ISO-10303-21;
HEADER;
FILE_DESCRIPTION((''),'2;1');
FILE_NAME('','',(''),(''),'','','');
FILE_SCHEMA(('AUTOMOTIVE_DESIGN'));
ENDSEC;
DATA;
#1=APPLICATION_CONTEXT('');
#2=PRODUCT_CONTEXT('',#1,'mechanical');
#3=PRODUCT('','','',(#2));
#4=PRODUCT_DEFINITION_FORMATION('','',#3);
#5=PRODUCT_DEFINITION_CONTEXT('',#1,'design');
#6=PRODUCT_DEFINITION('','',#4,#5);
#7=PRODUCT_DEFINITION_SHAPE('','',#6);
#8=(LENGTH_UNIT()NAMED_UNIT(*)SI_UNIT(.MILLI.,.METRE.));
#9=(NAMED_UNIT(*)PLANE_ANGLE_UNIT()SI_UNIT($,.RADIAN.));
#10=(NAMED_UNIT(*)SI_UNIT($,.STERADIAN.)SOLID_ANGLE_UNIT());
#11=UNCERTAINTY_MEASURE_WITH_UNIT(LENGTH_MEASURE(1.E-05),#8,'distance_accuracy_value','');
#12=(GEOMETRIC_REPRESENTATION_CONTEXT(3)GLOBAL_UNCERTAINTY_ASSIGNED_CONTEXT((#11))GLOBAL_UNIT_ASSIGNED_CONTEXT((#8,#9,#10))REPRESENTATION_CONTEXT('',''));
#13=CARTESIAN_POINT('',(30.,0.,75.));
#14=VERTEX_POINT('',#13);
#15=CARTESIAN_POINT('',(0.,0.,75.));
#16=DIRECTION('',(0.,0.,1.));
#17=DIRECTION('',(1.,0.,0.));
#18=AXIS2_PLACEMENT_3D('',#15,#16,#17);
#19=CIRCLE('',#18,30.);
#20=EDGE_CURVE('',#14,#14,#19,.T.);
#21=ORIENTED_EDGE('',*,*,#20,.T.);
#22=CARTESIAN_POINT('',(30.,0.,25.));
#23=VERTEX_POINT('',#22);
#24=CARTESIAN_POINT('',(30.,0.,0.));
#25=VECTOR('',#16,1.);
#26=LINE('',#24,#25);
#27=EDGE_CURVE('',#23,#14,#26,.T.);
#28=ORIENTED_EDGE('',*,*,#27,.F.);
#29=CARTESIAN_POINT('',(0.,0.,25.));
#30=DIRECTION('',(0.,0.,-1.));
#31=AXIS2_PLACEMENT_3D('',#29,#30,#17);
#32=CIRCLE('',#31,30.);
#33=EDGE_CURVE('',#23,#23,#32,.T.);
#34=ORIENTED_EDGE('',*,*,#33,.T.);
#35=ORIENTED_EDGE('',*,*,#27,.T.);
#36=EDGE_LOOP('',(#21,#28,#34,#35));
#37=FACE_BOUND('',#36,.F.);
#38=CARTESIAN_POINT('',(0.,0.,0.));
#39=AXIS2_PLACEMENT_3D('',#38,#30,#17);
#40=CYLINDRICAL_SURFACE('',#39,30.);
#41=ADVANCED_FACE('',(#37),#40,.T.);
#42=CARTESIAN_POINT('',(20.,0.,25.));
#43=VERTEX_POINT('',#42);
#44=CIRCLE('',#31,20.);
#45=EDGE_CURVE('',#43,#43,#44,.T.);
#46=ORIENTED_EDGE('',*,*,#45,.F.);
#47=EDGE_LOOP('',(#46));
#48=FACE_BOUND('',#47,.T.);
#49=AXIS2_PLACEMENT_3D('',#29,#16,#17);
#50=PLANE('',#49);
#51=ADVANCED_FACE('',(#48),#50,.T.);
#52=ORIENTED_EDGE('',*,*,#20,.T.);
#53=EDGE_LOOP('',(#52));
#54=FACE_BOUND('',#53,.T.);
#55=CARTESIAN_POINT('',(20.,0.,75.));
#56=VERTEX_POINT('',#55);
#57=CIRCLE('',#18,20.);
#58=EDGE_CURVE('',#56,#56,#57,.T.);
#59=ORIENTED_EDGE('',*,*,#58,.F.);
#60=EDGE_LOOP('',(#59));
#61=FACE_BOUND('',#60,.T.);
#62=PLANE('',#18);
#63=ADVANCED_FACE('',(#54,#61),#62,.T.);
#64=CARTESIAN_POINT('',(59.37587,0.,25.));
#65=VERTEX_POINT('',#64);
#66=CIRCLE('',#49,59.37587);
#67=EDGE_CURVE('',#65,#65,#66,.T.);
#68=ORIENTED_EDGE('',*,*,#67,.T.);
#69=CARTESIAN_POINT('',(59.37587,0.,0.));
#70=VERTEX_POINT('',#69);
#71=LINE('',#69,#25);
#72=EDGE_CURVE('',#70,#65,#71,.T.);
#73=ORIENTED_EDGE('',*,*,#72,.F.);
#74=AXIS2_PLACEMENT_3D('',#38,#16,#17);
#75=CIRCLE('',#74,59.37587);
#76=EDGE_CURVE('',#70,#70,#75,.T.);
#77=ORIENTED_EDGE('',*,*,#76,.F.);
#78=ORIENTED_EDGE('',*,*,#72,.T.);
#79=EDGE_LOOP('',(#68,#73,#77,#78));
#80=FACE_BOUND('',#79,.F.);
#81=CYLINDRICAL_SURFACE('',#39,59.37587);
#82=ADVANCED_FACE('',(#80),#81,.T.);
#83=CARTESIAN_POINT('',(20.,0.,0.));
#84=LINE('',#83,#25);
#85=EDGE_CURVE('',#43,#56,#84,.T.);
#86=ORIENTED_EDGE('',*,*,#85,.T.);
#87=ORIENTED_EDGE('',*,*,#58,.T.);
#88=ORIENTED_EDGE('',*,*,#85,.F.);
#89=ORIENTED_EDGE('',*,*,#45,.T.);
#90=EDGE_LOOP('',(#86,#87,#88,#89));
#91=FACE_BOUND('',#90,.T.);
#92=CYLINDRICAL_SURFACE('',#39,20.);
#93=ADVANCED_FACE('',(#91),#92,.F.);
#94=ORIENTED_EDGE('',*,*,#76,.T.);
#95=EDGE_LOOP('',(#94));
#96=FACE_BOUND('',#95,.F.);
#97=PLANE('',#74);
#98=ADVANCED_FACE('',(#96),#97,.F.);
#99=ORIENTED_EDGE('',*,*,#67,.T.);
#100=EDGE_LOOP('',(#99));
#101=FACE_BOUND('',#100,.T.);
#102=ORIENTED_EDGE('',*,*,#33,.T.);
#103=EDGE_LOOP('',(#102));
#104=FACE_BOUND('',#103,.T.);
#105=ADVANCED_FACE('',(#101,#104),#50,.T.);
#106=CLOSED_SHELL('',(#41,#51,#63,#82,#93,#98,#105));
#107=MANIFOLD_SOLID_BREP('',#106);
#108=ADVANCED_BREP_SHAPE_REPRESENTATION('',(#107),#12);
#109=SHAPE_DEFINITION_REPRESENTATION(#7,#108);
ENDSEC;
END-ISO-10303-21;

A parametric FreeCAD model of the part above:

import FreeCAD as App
import Part
import Sketcher

doc = App.newDocument("Part")
body = doc.addObject("PartDesign::Body", "Body")

# Sketch on XY plane
sketch1 = doc.addObject("Sketcher::SketchObject", "Sketch")
body.addObject(sketch1)
sketch1.AttachmentSupport = (doc.XY_Plane, [""])
sketch1.MapMode = "FlatFace"
sketch1.addGeometry(Part.Circle(App.Vector(0, 0, 0), App.Vector(0, 0, 1), 30), False)
sketch1.addConstraint([
    Sketcher.Constraint("Coincident", 0, 3, -1, 1),
    Sketcher.Constraint("Diameter", 0, 60.0),
])
pad1 = doc.addObject("PartDesign::Pad", "Pad")
body.addObject(pad1)
pad1.Profile = sketch1
pad1.Length = 75

# Sketch on XY plane
sketch2 = doc.addObject("Sketcher::SketchObject", "Sketch001")
body.addObject(sketch2)
sketch2.AttachmentSupport = (doc.XY_Plane, [""])
sketch2.MapMode = "FlatFace"
sketch2.addGeometry(Part.Circle(App.Vector(0, 0, 0), App.Vector(0, 0, 1), 20), False)
sketch2.addConstraint([
    Sketcher.Constraint("Coincident", 0, 3, -1, 1),
    Sketcher.Constraint("Diameter", 0, 40.0),
])
pocket1 = doc.addObject("PartDesign::Pocket", "Pocket")
body.addObject(pocket1)
pocket1.Profile = sketch2
pocket1.Type = "ThroughAll"
pocket1.Reversed = True

# Sketch on XY plane
sketch3 = doc.addObject("Sketcher::SketchObject", "Sketch002")
body.addObject(sketch3)
sketch3.AttachmentSupport = (doc.XY_Plane, [""])
sketch3.MapMode = "FlatFace"
sketch3.addGeometry(Part.Circle(App.Vector(0, 0, 0), App.Vector(0, 0, 1), 59), False)
sketch3.addConstraint([
    Sketcher.Constraint("Coincident", 0, 3, -1, 1),
    Sketcher.Constraint("Diameter", 0, 118.75174),
])
pad2 = doc.addObject("PartDesign::Pad", "Pad001")
body.addObject(pad2)
pad2.Profile = sketch3
pad2.Length = 25

doc.recompute()
